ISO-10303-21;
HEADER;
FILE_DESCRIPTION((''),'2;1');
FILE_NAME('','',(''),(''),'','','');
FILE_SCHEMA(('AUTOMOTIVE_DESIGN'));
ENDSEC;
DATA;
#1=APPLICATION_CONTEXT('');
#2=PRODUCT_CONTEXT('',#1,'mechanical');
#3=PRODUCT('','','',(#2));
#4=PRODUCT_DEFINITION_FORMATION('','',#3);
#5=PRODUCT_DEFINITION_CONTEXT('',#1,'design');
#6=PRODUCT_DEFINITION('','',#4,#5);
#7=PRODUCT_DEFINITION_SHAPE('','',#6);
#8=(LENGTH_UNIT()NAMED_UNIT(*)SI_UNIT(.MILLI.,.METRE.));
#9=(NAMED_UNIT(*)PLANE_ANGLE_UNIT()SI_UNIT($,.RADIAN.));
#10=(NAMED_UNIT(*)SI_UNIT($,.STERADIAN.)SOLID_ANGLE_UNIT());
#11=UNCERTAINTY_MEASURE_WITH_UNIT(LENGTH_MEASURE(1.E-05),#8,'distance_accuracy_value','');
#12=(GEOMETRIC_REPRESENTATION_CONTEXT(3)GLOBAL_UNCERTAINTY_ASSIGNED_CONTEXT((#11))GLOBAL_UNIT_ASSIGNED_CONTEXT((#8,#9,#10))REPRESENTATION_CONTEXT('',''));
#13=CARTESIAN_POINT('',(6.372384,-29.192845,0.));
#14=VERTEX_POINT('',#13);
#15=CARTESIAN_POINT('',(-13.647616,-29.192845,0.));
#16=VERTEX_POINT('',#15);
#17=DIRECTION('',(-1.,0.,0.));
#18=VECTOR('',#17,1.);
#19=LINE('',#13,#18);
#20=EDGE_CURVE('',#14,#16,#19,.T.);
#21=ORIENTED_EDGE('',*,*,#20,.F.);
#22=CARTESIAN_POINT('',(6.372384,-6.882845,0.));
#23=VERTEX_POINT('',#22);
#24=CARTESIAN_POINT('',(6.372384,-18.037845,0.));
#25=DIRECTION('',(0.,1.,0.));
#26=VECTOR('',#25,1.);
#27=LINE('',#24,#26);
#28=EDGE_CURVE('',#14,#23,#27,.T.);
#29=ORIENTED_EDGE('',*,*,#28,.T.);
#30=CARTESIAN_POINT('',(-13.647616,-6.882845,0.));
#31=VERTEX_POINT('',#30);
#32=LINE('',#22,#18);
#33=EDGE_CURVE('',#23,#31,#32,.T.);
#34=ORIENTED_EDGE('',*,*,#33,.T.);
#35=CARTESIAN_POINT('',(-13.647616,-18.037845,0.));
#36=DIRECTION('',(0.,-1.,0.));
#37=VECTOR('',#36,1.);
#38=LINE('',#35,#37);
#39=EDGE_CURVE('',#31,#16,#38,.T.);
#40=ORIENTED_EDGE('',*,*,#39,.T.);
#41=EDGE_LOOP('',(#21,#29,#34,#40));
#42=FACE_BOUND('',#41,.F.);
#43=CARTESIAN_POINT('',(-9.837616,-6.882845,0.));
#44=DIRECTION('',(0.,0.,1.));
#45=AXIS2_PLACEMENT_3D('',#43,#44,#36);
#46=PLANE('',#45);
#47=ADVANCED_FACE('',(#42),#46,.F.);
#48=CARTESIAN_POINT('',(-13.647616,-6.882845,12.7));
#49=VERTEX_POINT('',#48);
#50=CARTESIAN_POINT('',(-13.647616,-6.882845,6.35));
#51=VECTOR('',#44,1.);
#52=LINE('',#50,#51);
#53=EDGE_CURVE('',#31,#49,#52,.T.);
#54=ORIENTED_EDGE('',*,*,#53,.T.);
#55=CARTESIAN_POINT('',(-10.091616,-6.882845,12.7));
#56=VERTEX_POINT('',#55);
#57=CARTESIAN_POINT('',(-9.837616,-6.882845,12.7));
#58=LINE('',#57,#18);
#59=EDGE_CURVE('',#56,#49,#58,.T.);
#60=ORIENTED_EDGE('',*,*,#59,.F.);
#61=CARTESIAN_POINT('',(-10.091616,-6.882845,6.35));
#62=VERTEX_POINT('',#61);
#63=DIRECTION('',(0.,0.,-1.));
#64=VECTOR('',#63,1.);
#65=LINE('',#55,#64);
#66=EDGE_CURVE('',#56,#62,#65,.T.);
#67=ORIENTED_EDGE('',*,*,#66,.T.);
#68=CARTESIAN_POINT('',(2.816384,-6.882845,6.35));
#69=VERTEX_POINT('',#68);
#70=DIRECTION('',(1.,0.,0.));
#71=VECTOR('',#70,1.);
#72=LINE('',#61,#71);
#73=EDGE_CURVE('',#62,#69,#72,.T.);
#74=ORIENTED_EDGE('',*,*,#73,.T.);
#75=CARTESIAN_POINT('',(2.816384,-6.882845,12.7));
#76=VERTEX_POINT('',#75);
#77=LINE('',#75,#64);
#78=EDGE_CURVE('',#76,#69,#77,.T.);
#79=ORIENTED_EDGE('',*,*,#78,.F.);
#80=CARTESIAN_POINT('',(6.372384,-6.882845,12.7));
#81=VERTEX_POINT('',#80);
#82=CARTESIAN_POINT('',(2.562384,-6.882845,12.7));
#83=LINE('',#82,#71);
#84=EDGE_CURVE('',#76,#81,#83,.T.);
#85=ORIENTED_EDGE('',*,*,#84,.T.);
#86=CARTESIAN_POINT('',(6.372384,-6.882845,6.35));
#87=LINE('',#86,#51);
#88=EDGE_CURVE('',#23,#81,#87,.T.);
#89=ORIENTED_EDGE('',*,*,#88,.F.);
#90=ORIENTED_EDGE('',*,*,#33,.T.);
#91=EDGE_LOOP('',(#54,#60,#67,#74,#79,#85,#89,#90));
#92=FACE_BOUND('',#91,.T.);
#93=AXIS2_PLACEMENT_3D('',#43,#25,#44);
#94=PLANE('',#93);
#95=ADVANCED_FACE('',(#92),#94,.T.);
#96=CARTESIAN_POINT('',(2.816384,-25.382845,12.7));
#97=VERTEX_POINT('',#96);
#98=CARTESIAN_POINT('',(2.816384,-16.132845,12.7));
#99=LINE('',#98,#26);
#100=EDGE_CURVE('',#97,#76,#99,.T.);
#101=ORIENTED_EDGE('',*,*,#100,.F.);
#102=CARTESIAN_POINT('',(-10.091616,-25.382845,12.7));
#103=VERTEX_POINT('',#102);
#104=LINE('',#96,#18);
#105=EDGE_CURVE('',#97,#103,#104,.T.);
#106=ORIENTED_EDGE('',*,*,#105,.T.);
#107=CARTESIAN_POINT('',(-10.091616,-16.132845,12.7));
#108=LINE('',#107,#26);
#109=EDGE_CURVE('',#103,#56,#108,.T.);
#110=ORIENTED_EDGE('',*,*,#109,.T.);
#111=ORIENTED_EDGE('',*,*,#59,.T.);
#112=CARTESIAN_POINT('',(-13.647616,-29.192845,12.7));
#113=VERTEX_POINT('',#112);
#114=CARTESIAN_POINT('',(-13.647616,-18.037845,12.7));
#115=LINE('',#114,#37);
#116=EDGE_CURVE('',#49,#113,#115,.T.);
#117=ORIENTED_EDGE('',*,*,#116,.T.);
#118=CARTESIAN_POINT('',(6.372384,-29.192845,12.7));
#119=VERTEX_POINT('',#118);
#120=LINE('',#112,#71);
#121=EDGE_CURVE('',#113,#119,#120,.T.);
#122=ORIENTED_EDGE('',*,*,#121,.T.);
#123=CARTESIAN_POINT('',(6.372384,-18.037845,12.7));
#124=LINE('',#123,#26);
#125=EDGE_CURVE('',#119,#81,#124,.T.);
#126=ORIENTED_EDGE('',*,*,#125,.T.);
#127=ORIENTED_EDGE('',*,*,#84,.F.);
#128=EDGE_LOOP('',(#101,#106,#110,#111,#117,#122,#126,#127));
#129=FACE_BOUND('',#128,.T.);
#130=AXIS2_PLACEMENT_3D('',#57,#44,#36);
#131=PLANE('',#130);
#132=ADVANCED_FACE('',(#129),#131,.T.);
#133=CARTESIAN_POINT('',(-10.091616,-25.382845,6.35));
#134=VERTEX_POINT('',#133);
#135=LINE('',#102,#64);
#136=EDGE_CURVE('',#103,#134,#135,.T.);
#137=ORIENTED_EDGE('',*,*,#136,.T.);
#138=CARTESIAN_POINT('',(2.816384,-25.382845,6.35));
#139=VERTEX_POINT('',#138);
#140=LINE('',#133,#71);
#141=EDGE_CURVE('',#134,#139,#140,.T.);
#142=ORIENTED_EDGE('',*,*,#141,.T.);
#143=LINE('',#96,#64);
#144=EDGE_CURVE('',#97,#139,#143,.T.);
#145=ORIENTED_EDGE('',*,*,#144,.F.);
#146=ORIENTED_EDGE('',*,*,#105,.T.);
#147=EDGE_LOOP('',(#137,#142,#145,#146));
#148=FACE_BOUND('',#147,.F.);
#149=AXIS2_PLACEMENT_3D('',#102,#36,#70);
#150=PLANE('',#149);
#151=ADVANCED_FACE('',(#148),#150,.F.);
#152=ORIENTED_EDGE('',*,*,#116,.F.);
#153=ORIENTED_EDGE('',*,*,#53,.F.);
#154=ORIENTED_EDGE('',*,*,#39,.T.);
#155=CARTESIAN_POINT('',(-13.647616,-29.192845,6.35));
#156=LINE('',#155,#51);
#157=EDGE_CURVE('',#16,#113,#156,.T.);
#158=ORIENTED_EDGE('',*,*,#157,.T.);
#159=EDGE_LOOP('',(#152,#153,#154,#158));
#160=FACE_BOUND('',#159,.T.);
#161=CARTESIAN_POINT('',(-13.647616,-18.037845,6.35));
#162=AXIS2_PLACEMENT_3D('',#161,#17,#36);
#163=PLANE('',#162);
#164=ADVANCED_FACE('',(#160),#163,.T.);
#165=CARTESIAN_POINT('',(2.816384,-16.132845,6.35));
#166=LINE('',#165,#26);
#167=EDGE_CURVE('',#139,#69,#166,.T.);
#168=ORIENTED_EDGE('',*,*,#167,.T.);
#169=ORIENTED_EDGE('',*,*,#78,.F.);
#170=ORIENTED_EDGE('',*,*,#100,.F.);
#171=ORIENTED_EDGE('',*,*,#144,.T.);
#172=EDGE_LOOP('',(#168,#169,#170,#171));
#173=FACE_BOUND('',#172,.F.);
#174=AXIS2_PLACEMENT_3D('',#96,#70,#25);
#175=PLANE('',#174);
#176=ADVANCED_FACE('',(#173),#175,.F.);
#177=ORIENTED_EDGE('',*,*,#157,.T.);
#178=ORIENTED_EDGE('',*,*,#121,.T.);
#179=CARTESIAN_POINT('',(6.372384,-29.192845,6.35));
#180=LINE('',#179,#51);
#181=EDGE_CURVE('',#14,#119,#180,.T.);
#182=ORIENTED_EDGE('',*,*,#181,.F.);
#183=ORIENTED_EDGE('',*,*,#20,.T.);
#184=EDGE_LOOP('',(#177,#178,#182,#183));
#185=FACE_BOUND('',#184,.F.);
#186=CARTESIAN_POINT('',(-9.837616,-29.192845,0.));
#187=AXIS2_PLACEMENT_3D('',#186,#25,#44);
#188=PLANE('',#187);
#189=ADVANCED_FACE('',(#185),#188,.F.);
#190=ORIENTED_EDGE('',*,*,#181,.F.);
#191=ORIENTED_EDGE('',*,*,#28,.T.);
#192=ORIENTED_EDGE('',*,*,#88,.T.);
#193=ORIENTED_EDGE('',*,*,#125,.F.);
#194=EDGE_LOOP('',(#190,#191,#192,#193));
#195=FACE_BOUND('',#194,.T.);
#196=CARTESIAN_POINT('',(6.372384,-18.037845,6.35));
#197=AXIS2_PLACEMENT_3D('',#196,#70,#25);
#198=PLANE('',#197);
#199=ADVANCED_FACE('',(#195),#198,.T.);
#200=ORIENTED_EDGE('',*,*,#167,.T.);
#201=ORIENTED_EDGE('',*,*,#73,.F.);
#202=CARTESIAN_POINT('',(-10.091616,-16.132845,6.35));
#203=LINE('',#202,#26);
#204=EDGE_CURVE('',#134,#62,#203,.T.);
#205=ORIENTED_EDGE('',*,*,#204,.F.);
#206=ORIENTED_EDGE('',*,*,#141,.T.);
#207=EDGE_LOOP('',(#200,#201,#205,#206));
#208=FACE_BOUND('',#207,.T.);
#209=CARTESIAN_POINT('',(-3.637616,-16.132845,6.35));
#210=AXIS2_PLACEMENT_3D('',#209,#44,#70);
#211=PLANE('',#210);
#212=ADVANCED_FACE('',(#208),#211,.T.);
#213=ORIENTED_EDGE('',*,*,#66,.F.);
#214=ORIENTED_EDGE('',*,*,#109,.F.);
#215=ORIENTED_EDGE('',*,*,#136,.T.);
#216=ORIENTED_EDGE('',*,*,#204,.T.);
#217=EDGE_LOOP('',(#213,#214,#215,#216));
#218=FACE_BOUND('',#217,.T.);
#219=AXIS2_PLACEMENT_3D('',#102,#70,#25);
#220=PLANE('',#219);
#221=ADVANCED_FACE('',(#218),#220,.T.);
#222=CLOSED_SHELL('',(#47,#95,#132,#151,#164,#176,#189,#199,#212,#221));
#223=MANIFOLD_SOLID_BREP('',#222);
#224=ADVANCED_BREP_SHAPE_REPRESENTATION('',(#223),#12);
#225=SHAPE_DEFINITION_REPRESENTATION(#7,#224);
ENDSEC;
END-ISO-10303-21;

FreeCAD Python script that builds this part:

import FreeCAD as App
import Part
import Sketcher
from FreeCAD import Vector
Q = App.Units.Quantity


def add_polygon(sketch, points):
    """Adds a closed chain of lines whose ends are joined by coincident constraints."""
    first, n = sketch.GeometryCount, len(points)
    for a, b in zip(points, points[1:] + points[:1]):
        sketch.addGeometry(Part.LineSegment(App.Vector(*a, 0), App.Vector(*b, 0)), False)
    for i in range(n):
        sketch.addConstraint(Sketcher.Constraint("Coincident", first + i, 2, first + (i + 1) % n, 1))

doc = App.newDocument("Part")
body = doc.addObject("PartDesign::Body", "Body")

sketch1 = body.newObject("Sketcher::SketchObject", "Sketch")
sketch1.AttachmentSupport = (doc.getObject("XY_Plane"), [""])
sketch1.MapMode = "FlatFace"
add_polygon(sketch1, [(-9.837616, -6.882845), (-9.837616, -25.382845), (2.562384, -25.382845), (2.562384, -6.882845)])
sketch1.addConstraint([
    Sketcher.Constraint("Vertical", 0),
    Sketcher.Constraint("Horizontal", 1),
    Sketcher.Constraint("Vertical", 2),
    Sketcher.Constraint("Horizontal", 3),
    Sketcher.Constraint("DistanceX", 1, 1, 1, 2, Q("12.4 mm")),
    Sketcher.Constraint("DistanceY", 0, 2, 0, 1, Q("18.5 mm")),
    Sketcher.Constraint("DistanceX", 0, 2, -1, 1, Q("9.837616 mm")),
    Sketcher.Constraint("DistanceY", 0, 2, -1, 1, Q("25.382845 mm")),
])
pad1 = body.newObject("PartDesign::Pad", "Pad")
pad1.Profile = sketch1
pad1.Length = Q("0.25 in")

sketch2 = body.newObject("Sketcher::SketchObject", "Sketch001")
sketch2.AttachmentSupport = (doc.getObject("XZ_Plane"), [""])
sketch2.MapMode = "FlatFace"
sketch2.AttachmentOffset = App.Placement(Vector(0, 0, 25.382845), App.Rotation())
add_polygon(sketch2, [(-9.837616, 12.7), (-9.837616, 0), (2.562384, 0), (2.562384, 12.7)])
sketch2.addConstraint([
    Sketcher.Constraint("Vertical", 0),
    Sketcher.Constraint("Horizontal", 1),
    Sketcher.Constraint("Vertical", 2),
    Sketcher.Constraint("Horizontal", 3),
    Sketcher.Constraint("PointOnObject", 0, 2, -1),
    Sketcher.Constraint("DistanceY", 0, 2, 0, 1, Q("0.5 in")),
    Sketcher.Constraint("DistanceX", 1, 1, 1, 2, Q("12.4 mm")),
    Sketcher.Constraint("DistanceX", 0, 2, -1, 1, Q("9.837616 mm")),
])
pad2 = body.newObject("PartDesign::Pad", "Pad001")
pad2.Profile = sketch2
pad2.Length = Q("0.15 in")

sketch3 = body.newObject("Sketcher::SketchObject", "Sketch002")
sketch3.AttachmentSupport = (doc.getObject("YZ_Plane"), [""])
sketch3.MapMode = "FlatFace"
sketch3.AttachmentOffset = App.Placement(Vector(0, 0, 2.562384), App.Rotation())
add_polygon(sketch3, [(-29.192845, 12.7), (-29.192845, 0), (-6.882845, 0), (-6.882845, 12.7)])
sketch3.addConstraint([
    Sketcher.Constraint("Vertical", 0),
    Sketcher.Constraint("Horizontal", 1),
    Sketcher.Constraint("Vertical", 2),
    Sketcher.Constraint("Horizontal", 3),
    Sketcher.Constraint("PointOnObject", 0, 2, -1),
    Sketcher.Constraint("DistanceY", 0, 2, 0, 1, Q("0.5 in")),
    Sketcher.Constraint("DistanceX", 1, 1, 1, 2, Q("22.31 mm")),
    Sketcher.Constraint("DistanceX", 0, 2, -1, 1, Q("29.192845 mm")),
])
pad3 = body.newObject("PartDesign::Pad", "Pad002")
pad3.Profile = sketch3
pad3.Length = Q("0.15 in")

sketch4 = body.newObject("Sketcher::SketchObject", "Sketch003")
sketch4.AttachmentSupport = (doc.getObject("YZ_Plane"), [""])
sketch4.MapMode = "FlatFace"
sketch4.AttachmentOffset = App.Placement(Vector(0, 0, -9.837616), App.Rotation())
add_polygon(sketch4, [(-6.882845, 12.7), (-6.882845, 0), (-29.192845, 0), (-29.192845, 12.7)])
sketch4.addConstraint([
    Sketcher.Constraint("Vertical", 0),
    Sketcher.Constraint("Horizontal", 1),
    Sketcher.Constraint("Vertical", 2),
    Sketcher.Constraint("Horizontal", 3),
    Sketcher.Constraint("PointOnObject", 0, 2, -1),
    Sketcher.Constraint("DistanceY", 0, 2, 0, 1, Q("0.5 in")),
    Sketcher.Constraint("DistanceX", 1, 2, 1, 1, Q("22.31 mm")),
    Sketcher.Constraint("DistanceX", 0, 2, -1, 1, Q("6.882845 mm")),
])
pad4 = body.newObject("PartDesign::Pad", "Pad003")
pad4.Profile = sketch4
pad4.Length = Q("0.15 in")
pad4.Reversed = True

sketch5 = body.newObject("Sketcher::SketchObject", "Sketch004")
sketch5.AttachmentSupport = (doc.getObject("XY_Plane"), [""])
sketch5.MapMode = "FlatFace"
sketch5.AttachmentOffset = App.Placement(Vector(0, 0, 0.5 * 25.4), App.Rotation())
add_polygon(sketch5, [(-10.091616, -6.882845), (-10.091616, -25.382845), (2.816384, -25.382845), (2.816384, -6.882845)])
sketch5.addConstraint([
    Sketcher.Constraint("Vertical", 0),
    Sketcher.Constraint("Horizontal", 1),
    Sketcher.Constraint("Vertical", 2),
    Sketcher.Constraint("Horizontal", 3),
    Sketcher.Constraint("DistanceX", 1, 1, 1, 2, Q("12.908 mm")),
    Sketcher.Constraint("DistanceY", 0, 2, 0, 1, Q("18.5 mm")),
    Sketcher.Constraint("DistanceX", 0, 2, -1, 1, Q("10.091616 mm")),
    Sketcher.Constraint("DistanceY", 0, 2, -1, 1, Q("25.382845 mm")),
])
pocket1 = body.newObject("PartDesign::Pocket", "Pocket")
pocket1.Profile = sketch5
pocket1.Length = Q("0.25 in")

doc.recompute()
